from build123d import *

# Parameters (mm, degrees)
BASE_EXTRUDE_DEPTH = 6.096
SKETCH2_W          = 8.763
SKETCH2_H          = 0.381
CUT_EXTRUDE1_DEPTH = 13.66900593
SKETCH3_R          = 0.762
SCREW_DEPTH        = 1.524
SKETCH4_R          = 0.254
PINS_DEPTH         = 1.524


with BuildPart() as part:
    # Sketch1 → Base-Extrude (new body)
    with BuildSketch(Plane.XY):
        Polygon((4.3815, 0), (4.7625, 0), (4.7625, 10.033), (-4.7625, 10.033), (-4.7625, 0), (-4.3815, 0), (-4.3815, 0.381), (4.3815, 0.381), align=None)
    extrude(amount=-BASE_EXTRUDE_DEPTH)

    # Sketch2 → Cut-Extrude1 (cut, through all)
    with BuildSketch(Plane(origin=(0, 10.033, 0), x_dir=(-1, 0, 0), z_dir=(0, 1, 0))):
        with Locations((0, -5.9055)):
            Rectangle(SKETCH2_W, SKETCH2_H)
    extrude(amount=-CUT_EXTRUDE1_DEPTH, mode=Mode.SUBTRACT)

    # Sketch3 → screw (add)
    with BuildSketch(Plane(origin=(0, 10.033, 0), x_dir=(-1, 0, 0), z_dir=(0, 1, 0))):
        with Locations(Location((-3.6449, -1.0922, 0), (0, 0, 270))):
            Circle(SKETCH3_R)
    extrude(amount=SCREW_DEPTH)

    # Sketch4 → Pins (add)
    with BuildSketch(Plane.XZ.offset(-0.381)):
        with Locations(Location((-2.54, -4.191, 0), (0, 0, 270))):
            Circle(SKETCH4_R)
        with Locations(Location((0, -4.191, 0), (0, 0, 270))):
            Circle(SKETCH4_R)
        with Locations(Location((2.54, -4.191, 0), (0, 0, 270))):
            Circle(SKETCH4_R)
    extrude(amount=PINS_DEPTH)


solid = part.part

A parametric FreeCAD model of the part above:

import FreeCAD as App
import Part
import Sketcher
from FreeCAD import Vector
Q = App.Units.Quantity

doc = App.newDocument("Part")
body = doc.addObject("PartDesign::Body", "Body")

sketch1 = body.newObject("Sketcher::SketchObject", "Sketch")
sketch1.AttachmentSupport = (doc.getObject("XY_Plane"), [""])
sketch1.MapMode = "FlatFace"
sketch1.addGeometry(Part.LineSegment(Vector(4.38, 0, 0), Vector(4.76, 0, 0)), False)
sketch1.addGeometry(Part.LineSegment(Vector(4.76, 0, 0), Vector(4.76, 10.03, 0)), False)
sketch1.addGeometry(Part.LineSegment(Vector(4.76, 10.03, 0), Vector(-4.76, 10.03, 0)), False)
sketch1.addGeometry(Part.LineSegment(Vector(-4.76, 10.03, 0), Vector(-4.76, 0, 0)), False)
sketch1.addGeometry(Part.LineSegment(Vector(-4.76, 0, 0), Vector(-4.38, 0, 0)), False)
sketch1.addGeometry(Part.LineSegment(Vector(-4.38, 0, 0), Vector(-4.38, 0.38, 0)), False)
sketch1.addGeometry(Part.LineSegment(Vector(-4.38, 0.38, 0), Vector(4.38, 0.38, 0)), False)
sketch1.addGeometry(Part.LineSegment(Vector(4.38, 0.38, 0), Vector(4.38, 0, 0)), False)
sketch1.addConstraint(Sketcher.Constraint("Coincident", 0, 2, 1, 1))
sketch1.addConstraint(Sketcher.Constraint("Coincident", 1, 2, 2, 1))
sketch1.addConstraint(Sketcher.Constraint("Coincident", 2, 2, 3, 1))
sketch1.addConstraint(Sketcher.Constraint("Coincident", 3, 2, 4, 1))
sketch1.addConstraint(Sketcher.Constraint("Coincident", 4, 2, 5, 1))
sketch1.addConstraint(Sketcher.Constraint("Coincident", 5, 2, 6, 1))
sketch1.addConstraint(Sketcher.Constraint("Coincident", 6, 2, 7, 1))
sketch1.addConstraint(Sketcher.Constraint("Coincident", 7, 2, 0, 1))
sketch1.addConstraint(Sketcher.Constraint("Horizontal", 0))
sketch1.addConstraint(Sketcher.Constraint("Vertical", 1))
sketch1.addConstraint(Sketcher.Constraint("Horizontal", 2))
sketch1.addConstraint(Sketcher.Constraint("Vertical", 3))
sketch1.addConstraint(Sketcher.Constraint("Horizontal", 4))
sketch1.addConstraint(Sketcher.Constraint("Vertical", 5))
sketch1.addConstraint(Sketcher.Constraint("Horizontal", 6))
sketch1.addConstraint(Sketcher.Constraint("Vertical", 7))
sketch1.addConstraint(Sketcher.Constraint("Symmetric", 0, 2, 3, 2, -1, 1))
sketch1.addConstraint(Sketcher.Constraint("Symmetric", 4, 2, 7, 2, -2))
sketch1.addConstraint(Sketcher.Constraint("Equal", 4, 5))
sketch1.addConstraint(Sketcher.Constraint("DistanceX", 0, 1, 0, 2, Q("0.015 in")))
sketch1.addConstraint(Sketcher.Constraint("DistanceX", 2, 2, 2, 1, Q("0.375 in")))
sketch1.addConstraint(Sketcher.Constraint("DistanceY", 1, 1, 1, 2, Q("0.395 in")))
pad1 = body.newObject("PartDesign::Pad", "Pad")
pad1.Profile = sketch1
pad1.Length = Q("0.24 in")
pad1.Reversed = True

sketch2 = body.newObject("Sketcher::SketchObject", "Sketch001")
sketch2.AttachmentSupport = (doc.getObject("XZ_Plane"), [""])
sketch2.MapMode = "FlatFace"
sketch2.AttachmentOffset = App.Placement(Vector(0, 0, -0.395 * 25.4), App.Rotation())
sketch2.addGeometry(Part.LineSegment(Vector(4.38, -5.71, 0), Vector(4.38, -6.1, 0)), False)
sketch2.addGeometry(Part.LineSegment(Vector(4.38, -6.1, 0), Vector(-4.38, -6.1, 0)), False)
sketch2.addGeometry(Part.LineSegment(Vector(-4.38, -6.1, 0), Vector(-4.38, -5.71, 0)), False)
sketch2.addGeometry(Part.LineSegment(Vector(-4.38, -5.71, 0), Vector(4.38, -5.71, 0)), False)
sketch2.addConstraint(Sketcher.Constraint("Coincident", 0, 2, 1, 1))
sketch2.addConstraint(Sketcher.Constraint("Coincident", 1, 2, 2, 1))
sketch2.addConstraint(Sketcher.Constraint("Coincident", 2, 2, 3, 1))
sketch2.addConstraint(Sketcher.Constraint("Coincident", 3, 2, 0, 1))
sketch2.addConstraint(Sketcher.Constraint("Vertical", 0))
sketch2.addConstraint(Sketcher.Constraint("Horizontal", 1))
sketch2.addConstraint(Sketcher.Constraint("Vertical", 2))
sketch2.addConstraint(Sketcher.Constraint("Horizontal", 3))
sketch2.addConstraint(Sketcher.Constraint("DistanceX", 1, 2, 1, 1, Q("0.345 in")))
sketch2.addConstraint(Sketcher.Constraint("DistanceY", 0, 2, 0, 1, Q("0.015 in")))
sketch2.addConstraint(Sketcher.Constraint("DistanceY", 0, 2, -1, 1, Q("0.24 in")))
sketch2.addConstraint(Sketcher.Constraint("DistanceX", -1, 1, 0, 2, Q("0.1725 in")))
pocket1 = body.newObject("PartDesign::Pocket", "Pocket")
pocket1.Profile = sketch2
pocket1.Type = "ThroughAll"
pocket1.Reversed = True

sketch3 = body.newObject("Sketcher::SketchObject", "Sketch002")
sketch3.AttachmentSupport = (doc.getObject("XZ_Plane"), [""])
sketch3.MapMode = "FlatFace"
sketch3.AttachmentOffset = App.Placement(Vector(0, 0, -0.395 * 25.4), App.Rotation())
sketch3.addGeometry(Part.Circle(Vector(3.6, -1.1, 0), Vector(0, 0, 1), 0.8), False)
sketch3.addConstraint(Sketcher.Constraint("Diameter", 0, Q("0.06 in")))
sketch3.addConstraint(Sketcher.Constraint("DistanceY", 0, 3, -1, 1, Q("0.043 in")))
sketch3.addConstraint(Sketcher.Constraint("DistanceX", -1, 1, 0, 3, Q("0.1435 in")))
pad2 = body.newObject("PartDesign::Pad", "Pad001")
pad2.Profile = sketch3
pad2.Length = Q("0.06 in")
pad2.Reversed = True

sketch4 = body.newObject("Sketcher::SketchObject", "Sketch003")
sketch4.AttachmentSupport = (doc.getObject("XZ_Plane"), [""])
sketch4.MapMode = "FlatFace"
sketch4.AttachmentOffset = App.Placement(Vector(0, 0, -0.015 * 25.4), App.Rotation())
sketch4.addGeometry(Part.Circle(Vector(-2.54, -4.19, 0), Vector(0, 0, 1), 0.25), False)
sketch4.addGeometry(Part.Circle(Vector(0, -4.19, 0), Vector(0, 0, 1), 0.25), False)
sketch4.addGeometry(Part.Circle(Vector(2.54, -4.19, 0), Vector(0, 0, 1), 0.25), False)
sketch4.addConstraint(Sketcher.Constraint("Equal", 0, 1))
sketch4.addConstraint(Sketcher.Constraint("Equal", 1, 2))
sketch4.addConstraint(Sketcher.Constraint("Symmetric", 0, 3, 2, 3, -2))
sketch4.addConstraint(Sketcher.Constraint("PointOnObject", 1, 3, -2))
sketch4.addConstraint(Sketcher.Constraint("Horizontal", 0, 3, 1, 3))
sketch4.addConstraint(Sketcher.Constraint("Diameter", 0, Q("0.02 in")))
sketch4.addConstraint(Sketcher.Constraint("DistanceX", 0, 3, -1, 1, Q("0.1 in")))
sketch4.addConstraint(Sketcher.Constraint("DistanceY", 0, 3, -1, 1, Q("0.165 in")))
pad3 = body.newObject("PartDesign::Pad", "Pad002")
pad3.Profile = sketch4
pad3.Length = Q("0.06 in")

doc.recompute()
